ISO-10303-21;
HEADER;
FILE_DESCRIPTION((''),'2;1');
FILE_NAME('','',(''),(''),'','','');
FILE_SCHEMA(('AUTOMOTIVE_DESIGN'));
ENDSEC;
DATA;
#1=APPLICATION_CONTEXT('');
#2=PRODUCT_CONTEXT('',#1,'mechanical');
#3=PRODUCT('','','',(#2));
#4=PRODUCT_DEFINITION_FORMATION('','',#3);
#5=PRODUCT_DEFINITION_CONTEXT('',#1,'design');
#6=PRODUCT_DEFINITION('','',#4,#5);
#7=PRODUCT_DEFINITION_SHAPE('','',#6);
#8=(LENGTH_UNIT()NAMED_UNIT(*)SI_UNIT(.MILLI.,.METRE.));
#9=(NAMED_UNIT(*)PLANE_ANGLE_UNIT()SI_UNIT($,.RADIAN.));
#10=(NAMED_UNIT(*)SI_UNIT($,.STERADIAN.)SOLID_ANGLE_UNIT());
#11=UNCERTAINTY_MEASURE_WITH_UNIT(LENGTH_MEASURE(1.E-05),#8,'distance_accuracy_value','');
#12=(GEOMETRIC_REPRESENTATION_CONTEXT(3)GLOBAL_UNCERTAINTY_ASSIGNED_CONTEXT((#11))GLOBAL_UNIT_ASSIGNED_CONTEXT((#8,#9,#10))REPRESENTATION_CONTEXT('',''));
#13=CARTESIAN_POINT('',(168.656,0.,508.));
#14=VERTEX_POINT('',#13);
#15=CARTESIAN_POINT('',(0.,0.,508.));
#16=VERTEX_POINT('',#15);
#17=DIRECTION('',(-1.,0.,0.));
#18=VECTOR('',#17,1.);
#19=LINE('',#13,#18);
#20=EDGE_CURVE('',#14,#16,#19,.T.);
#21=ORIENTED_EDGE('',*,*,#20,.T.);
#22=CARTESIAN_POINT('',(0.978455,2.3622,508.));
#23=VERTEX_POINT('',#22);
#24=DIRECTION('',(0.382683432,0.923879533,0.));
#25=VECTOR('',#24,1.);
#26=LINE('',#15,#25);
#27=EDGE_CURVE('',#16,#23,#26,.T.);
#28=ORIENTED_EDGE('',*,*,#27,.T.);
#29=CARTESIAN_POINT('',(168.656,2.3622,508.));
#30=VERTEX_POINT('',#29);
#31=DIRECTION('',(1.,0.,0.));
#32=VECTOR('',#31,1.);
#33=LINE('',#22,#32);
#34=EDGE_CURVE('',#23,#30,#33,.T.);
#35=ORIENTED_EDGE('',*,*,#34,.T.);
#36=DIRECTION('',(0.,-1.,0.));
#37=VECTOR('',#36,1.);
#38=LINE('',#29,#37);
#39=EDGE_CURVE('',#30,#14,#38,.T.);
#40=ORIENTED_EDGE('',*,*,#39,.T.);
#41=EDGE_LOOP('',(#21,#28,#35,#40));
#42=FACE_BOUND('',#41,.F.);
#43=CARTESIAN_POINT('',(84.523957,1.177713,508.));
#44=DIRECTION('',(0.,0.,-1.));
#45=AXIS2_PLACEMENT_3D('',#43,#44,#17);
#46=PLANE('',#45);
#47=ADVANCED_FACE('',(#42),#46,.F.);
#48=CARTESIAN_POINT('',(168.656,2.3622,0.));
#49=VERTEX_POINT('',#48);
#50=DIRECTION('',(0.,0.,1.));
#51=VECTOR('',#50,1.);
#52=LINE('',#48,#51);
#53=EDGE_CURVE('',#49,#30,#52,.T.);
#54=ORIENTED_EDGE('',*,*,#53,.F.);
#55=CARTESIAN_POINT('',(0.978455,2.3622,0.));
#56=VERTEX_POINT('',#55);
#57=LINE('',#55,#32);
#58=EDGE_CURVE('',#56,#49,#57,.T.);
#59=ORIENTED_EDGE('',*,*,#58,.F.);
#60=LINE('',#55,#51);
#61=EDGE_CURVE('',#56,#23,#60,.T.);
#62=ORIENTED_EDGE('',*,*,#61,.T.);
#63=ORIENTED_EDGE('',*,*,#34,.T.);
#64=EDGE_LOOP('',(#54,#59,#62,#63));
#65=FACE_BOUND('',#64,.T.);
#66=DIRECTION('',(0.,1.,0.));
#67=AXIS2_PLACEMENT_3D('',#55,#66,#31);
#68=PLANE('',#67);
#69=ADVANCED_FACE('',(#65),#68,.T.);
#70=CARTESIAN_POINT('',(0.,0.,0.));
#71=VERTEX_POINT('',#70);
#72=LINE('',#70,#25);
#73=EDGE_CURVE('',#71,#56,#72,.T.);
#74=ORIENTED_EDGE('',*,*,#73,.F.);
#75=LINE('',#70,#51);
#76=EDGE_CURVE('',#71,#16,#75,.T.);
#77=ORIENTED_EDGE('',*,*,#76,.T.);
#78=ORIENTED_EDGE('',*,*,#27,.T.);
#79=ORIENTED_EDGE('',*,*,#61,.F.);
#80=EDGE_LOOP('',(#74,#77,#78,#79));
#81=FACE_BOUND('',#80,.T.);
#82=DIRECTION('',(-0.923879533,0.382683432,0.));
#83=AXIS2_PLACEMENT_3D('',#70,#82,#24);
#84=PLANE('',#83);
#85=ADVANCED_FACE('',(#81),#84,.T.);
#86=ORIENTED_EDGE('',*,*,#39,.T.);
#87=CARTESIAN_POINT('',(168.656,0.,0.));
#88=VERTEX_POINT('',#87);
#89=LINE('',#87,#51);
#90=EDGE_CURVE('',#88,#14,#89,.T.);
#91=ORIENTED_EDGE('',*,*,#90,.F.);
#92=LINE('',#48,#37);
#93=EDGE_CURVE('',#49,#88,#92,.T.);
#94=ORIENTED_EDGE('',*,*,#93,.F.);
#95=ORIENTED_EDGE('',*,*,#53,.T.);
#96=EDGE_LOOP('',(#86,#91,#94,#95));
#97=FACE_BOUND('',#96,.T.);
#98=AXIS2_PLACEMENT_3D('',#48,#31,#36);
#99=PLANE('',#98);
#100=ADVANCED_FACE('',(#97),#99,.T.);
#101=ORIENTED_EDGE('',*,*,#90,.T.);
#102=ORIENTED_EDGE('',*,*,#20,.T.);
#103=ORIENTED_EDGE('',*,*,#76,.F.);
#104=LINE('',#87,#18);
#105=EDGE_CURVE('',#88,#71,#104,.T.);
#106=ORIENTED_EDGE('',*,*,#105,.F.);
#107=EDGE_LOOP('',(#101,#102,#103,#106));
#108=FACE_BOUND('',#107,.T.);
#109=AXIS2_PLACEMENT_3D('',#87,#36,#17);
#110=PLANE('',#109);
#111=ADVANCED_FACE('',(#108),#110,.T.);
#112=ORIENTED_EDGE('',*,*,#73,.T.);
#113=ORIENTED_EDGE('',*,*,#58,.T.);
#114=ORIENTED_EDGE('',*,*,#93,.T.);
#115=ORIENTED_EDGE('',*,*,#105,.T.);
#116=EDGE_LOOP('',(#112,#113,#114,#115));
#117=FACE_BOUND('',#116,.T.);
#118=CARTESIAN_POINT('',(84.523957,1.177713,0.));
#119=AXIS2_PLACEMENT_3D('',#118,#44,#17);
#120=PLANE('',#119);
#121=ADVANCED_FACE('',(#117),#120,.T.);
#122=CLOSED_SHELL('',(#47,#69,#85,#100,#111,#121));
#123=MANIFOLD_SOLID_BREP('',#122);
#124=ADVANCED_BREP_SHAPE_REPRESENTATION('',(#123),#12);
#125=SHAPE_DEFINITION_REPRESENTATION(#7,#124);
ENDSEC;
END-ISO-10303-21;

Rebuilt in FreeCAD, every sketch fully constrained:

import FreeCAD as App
import Part
import Sketcher
from FreeCAD import Vector
Q = App.Units.Quantity

doc = App.newDocument("Part")
body = doc.addObject("PartDesign::Body", "Body")

# Sketch on XY plane
sketch1 = body.newObject("Sketcher::SketchObject", "Sketch")
sketch1.AttachmentSupport = (doc.getObject("XY_Plane"), [""])
sketch1.MapMode = "FlatFace"
sketch1.addGeometry(Part.LineSegment(Vector(0.978455, 2.3622, 0), Vector(0, 0, 0)), False)
sketch1.addGeometry(Part.LineSegment(Vector(0, 0, 0), Vector(168.656, 0, 0)), False)
sketch1.addGeometry(Part.LineSegment(Vector(168.656, 0, 0), Vector(168.656, 2.3622, 0)), False)
sketch1.addGeometry(Part.LineSegment(Vector(168.656, 2.3622, 0), Vector(0.978455, 2.3622, 0)), False)
sketch1.addConstraint(Sketcher.Constraint("Coincident", 0, 2, 1, 1))
sketch1.addConstraint(Sketcher.Constraint("Coincident", 1, 2, 2, 1))
sketch1.addConstraint(Sketcher.Constraint("Coincident", 2, 2, 3, 1))
sketch1.addConstraint(Sketcher.Constraint("Coincident", 3, 2, 0, 1))
sketch1.addConstraint(Sketcher.Constraint("Horizontal", 1))
sketch1.addConstraint(Sketcher.Constraint("Vertical", 2))
sketch1.addConstraint(Sketcher.Constraint("Horizontal", 3))
sketch1.addConstraint(Sketcher.Constraint("Coincident", 0, 2, -1, 1))
sketch1.addConstraint(Sketcher.Constraint("DistanceX", 1, 1, 1, 2, Q("6.64 in")))
sketch1.addConstraint(Sketcher.Constraint("Angle", 0, Q("-112.5 deg")))
sketch1.addConstraint(Sketcher.Constraint("DistanceY", 2, 1, 2, 2, Q("0.093 in")))
pad1 = body.newObject("PartDesign::Pad", "Pad")
pad1.Profile = sketch1
pad1.Length = Q("20 in")

doc.recompute()
